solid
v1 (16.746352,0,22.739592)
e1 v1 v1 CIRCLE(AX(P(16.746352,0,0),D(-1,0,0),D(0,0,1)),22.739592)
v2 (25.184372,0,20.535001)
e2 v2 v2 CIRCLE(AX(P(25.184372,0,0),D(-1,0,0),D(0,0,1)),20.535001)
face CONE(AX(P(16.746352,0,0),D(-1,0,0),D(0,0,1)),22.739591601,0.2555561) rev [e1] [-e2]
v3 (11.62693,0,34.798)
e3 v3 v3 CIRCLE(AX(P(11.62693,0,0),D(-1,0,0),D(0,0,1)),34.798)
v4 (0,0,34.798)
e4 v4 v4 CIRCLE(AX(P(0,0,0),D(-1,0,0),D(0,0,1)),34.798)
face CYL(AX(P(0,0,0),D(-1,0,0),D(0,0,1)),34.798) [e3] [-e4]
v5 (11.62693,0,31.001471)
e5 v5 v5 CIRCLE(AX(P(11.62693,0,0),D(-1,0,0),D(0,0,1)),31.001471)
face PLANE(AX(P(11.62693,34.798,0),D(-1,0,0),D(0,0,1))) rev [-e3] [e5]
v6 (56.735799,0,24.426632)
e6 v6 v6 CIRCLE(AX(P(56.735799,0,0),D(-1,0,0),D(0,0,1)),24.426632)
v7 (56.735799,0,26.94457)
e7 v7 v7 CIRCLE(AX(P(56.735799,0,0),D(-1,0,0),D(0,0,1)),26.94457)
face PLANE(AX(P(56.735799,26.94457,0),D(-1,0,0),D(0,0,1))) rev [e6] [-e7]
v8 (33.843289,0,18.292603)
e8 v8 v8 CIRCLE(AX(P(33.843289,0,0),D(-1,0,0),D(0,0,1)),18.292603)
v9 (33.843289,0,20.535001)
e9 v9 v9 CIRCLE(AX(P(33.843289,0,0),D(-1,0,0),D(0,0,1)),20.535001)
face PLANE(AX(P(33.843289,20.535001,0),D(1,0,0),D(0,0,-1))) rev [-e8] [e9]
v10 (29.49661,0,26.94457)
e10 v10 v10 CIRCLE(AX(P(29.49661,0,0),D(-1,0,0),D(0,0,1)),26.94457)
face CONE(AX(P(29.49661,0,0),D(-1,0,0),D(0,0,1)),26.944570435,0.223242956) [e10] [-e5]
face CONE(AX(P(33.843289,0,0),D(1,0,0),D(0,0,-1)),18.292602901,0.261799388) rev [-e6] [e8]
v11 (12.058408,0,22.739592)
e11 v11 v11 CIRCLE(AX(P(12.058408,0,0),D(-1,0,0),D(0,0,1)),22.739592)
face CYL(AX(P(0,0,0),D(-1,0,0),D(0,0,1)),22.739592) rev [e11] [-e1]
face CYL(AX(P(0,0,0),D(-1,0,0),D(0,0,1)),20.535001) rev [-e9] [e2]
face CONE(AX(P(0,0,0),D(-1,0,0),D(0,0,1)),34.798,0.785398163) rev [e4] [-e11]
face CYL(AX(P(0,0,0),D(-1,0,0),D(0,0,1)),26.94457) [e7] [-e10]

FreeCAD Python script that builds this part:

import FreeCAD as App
import Part
import Sketcher

V = App.Vector
Q = App.Units.Quantity

doc = App.newDocument("Part")
body = doc.addObject("PartDesign::Body", "Body")

# Sketch on XY plane
sketch1 = body.newObject("Sketcher::SketchObject", "Sketch")
sketch1.AttachmentSupport = (doc.getObject("XY_Plane"), [""])
sketch1.MapMode = "FlatFace"
sketch1.addGeometry([
    Part.LineSegment(V(0, 34.8, 0), V(12.1, 22.7, 0)),  # 0
    Part.LineSegment(V(12.1, 22.7, 0), V(16.7, 22.7, 0)),  # 1
    Part.LineSegment(V(16.7, 22.7, 0), V(25.2, 20.5, 0)),  # 2
    Part.LineSegment(V(25.2, 20.5, 0), V(33.8, 20.5, 0)),  # 3
    Part.LineSegment(V(33.8, 20.5, 0), V(33.8, 18.3, 0)),  # 4
    Part.LineSegment(V(33.8, 18.3, 0), V(56.7, 24.4, 0)),  # 5
    Part.LineSegment(V(56.7, 24.4, 0), V(56.7, 26.9, 0)),  # 6
    Part.LineSegment(V(56.7, 26.9, 0), V(29.5, 26.9, 0)),  # 7
    Part.LineSegment(V(29.5, 26.9, 0), V(11.6, 31, 0)),  # 8
    Part.LineSegment(V(11.6, 31, 0), V(11.6, 34.8, 0)),  # 9
    Part.LineSegment(V(11.6, 34.8, 0), V(0, 34.8, 0)),  # 10
], False)
sketch1.addConstraint([
    Sketcher.Constraint("Coincident", 0, 2, 1, 1),
    Sketcher.Constraint("Coincident", 1, 2, 2, 1),
    Sketcher.Constraint("Coincident", 2, 2, 3, 1),
    Sketcher.Constraint("Coincident", 3, 2, 4, 1),
    Sketcher.Constraint("Coincident", 4, 2, 5, 1),
    Sketcher.Constraint("Coincident", 5, 2, 6, 1),
    Sketcher.Constraint("Coincident", 6, 2, 7, 1),
    Sketcher.Constraint("Coincident", 7, 2, 8, 1),
    Sketcher.Constraint("Coincident", 8, 2, 9, 1),
    Sketcher.Constraint("Coincident", 9, 2, 10, 1),
    Sketcher.Constraint("Coincident", 10, 2, 0, 1),
    Sketcher.Constraint("Horizontal", 1),
    Sketcher.Constraint("Horizontal", 3),
    Sketcher.Constraint("Vertical", 4),
    Sketcher.Constraint("Vertical", 6),
    Sketcher.Constraint("Horizontal", 7),
    Sketcher.Constraint("Vertical", 9),
    Sketcher.Constraint("Horizontal", 10),
    Sketcher.Constraint("PointOnObject", 10, 2, -2),
    Sketcher.Constraint("Angle", 0, Q("-45 deg")),
    Sketcher.Constraint("Angle", 5, Q("15 deg")),
    Sketcher.Constraint("DistanceY", -1, 1, 2, 2, Q("20.535001 mm")),
    Sketcher.Constraint("DistanceY", -1, 1, 9, 2, Q("34.798 mm")),
    Sketcher.Constraint("DistanceX", 7, 2, 7, 1, Q("27.239189 mm")),
    Sketcher.Constraint("DistanceX", 10, 2, 10, 1, Q("11.62693 mm")),
    Sketcher.Constraint("DistanceY", 9, 1, 9, 2, Q("3.796529 mm")),
    Sketcher.Constraint("DistanceX", -1, 1, 5, 2, Q("56.735799 mm")),
    Sketcher.Constraint("DistanceX", 0, 2, 7, 2, Q("17.438202 mm")),
    Sketcher.Constraint("DistanceY", 7, 2, 8, 2, Q("4.056901 mm")),
    Sketcher.Constraint("Distance", 2, Q("8.721262 mm")),
    Sketcher.Constraint("Distance", 5, Q("23.70007 mm")),
    Sketcher.Constraint("DistanceX", 1, 1, 1, 2, Q("4.687943 mm")),
    Sketcher.Constraint("DistanceY", 4, 2, 4, 1, Q("2.242398 mm")),
])
revolution = body.newObject("PartDesign::Revolution", "Revolution")
revolution.Profile = sketch1
revolution.ReferenceAxis = (sketch1, ["H_Axis"])
revolution.Angle = 360

doc.recompute()
